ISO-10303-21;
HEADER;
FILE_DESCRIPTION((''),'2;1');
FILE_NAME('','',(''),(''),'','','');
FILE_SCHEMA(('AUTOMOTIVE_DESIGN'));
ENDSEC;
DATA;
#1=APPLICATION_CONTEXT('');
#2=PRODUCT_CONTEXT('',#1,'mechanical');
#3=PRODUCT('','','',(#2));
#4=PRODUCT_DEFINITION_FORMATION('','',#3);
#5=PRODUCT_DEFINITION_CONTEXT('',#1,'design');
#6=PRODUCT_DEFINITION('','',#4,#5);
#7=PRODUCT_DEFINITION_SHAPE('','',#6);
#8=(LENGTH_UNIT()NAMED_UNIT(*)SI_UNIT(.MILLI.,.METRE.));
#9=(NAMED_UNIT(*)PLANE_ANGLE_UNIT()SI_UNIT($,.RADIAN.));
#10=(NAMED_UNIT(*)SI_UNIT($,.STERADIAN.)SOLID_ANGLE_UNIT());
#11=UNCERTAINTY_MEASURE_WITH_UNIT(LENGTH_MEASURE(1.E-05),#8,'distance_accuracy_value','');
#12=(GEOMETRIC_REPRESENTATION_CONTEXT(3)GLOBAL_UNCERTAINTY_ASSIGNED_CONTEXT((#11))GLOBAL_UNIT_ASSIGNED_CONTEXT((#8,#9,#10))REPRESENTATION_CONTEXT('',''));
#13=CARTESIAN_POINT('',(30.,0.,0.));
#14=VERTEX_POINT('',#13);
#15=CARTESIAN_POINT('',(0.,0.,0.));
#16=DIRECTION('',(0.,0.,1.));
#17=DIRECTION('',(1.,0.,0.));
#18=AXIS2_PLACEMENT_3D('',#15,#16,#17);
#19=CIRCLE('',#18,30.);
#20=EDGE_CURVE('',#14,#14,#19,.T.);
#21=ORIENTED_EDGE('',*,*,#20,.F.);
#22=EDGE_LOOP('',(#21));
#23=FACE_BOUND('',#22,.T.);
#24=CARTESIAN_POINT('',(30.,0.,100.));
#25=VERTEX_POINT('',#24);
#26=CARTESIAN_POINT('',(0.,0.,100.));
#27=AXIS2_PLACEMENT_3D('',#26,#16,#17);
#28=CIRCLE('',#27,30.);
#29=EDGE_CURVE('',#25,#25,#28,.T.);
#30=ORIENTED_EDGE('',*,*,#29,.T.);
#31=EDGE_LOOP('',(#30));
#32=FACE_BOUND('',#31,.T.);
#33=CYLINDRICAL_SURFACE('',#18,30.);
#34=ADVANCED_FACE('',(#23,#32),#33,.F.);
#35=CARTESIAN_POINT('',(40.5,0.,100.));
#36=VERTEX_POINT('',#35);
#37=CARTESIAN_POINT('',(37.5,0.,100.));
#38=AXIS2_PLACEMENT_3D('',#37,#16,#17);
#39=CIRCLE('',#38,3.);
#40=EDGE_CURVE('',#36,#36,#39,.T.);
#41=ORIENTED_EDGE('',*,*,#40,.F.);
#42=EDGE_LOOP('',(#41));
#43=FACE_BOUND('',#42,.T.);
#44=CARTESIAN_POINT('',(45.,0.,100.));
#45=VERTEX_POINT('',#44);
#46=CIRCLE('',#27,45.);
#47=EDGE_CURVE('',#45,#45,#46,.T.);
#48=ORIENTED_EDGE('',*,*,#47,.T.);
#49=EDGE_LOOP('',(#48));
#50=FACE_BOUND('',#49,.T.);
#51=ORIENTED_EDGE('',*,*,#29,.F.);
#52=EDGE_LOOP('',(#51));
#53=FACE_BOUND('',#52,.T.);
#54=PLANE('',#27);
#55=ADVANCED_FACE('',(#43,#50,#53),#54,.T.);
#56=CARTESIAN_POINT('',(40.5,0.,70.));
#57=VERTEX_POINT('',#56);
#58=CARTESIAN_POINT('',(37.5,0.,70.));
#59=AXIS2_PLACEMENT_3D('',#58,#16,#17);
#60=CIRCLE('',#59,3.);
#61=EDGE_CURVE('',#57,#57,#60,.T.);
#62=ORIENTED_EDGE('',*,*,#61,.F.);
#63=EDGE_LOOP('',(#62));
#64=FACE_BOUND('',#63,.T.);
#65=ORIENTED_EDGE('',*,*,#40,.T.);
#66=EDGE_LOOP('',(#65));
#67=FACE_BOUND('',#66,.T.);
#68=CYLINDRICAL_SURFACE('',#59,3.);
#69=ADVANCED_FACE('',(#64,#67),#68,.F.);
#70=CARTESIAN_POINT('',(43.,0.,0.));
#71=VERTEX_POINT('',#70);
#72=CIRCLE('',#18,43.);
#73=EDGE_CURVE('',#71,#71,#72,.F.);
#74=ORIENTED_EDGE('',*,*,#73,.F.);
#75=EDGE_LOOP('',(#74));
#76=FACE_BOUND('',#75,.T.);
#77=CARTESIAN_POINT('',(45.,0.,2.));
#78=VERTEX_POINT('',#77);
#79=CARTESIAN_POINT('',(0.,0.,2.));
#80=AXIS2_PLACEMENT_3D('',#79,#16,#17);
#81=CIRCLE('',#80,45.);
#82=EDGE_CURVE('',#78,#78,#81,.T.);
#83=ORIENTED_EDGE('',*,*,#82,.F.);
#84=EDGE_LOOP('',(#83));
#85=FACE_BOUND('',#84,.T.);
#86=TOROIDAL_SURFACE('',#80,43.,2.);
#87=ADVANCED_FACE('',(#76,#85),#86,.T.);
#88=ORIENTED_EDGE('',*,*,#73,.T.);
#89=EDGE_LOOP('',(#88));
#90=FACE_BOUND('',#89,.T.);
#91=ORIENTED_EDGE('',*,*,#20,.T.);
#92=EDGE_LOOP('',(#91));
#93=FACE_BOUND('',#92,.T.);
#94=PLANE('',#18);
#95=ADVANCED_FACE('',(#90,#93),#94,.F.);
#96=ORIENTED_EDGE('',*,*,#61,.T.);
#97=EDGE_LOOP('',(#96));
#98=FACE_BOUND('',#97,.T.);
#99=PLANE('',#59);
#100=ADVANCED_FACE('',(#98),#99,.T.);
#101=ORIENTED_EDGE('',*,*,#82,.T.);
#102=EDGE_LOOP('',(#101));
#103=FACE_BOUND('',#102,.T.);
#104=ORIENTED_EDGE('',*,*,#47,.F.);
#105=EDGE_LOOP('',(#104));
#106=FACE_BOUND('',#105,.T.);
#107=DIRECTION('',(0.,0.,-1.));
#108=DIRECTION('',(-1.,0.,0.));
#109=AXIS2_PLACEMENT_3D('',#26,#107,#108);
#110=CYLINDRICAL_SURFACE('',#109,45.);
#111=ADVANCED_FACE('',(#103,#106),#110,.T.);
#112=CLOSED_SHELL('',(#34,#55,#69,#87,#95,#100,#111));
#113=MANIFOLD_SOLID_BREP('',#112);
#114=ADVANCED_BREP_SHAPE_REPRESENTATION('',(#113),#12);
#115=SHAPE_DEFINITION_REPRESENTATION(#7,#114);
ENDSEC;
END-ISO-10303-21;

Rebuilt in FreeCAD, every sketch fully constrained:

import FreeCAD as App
import Part
import Sketcher
from FreeCAD import Vector
Q = App.Units.Quantity


def edges_at(feature, points):
    """Names of the edges that pass closest to the given points."""
    edges = feature.Shape.Edges
    near = lambda p: min(range(len(edges)), key=lambda i: edges[i].distToShape(Part.Vertex(*p))[0])
    return sorted({f"Edge{near(p) + 1}" for p in points})

doc = App.newDocument("Part")
body = doc.addObject("PartDesign::Body", "Body")

# Sketch on XY plane
sketch1 = doc.addObject("Sketcher::SketchObject", "Sketch")
body.addObject(sketch1)
sketch1.AttachmentSupport = (doc.XY_Plane, [""])
sketch1.MapMode = "FlatFace"
sketch1.addGeometry(Part.Circle(Vector(0, 0, 0), Vector(0, 0, 1), 45), False)
sketch1.addConstraint([
    Sketcher.Constraint("Coincident", 0, 3, -1, 1),
    Sketcher.Constraint("Diameter", 0, Q("90 mm")),
])
pad1 = doc.addObject("PartDesign::Pad", "Pad")
body.addObject(pad1)
pad1.Profile = sketch1
pad1.Length = 100

# Sketch on XY plane
sketch2 = doc.addObject("Sketcher::SketchObject", "Sketch001")
body.addObject(sketch2)
sketch2.AttachmentSupport = (doc.XY_Plane, [""])
sketch2.MapMode = "FlatFace"
sketch2.AttachmentOffset = App.Placement(Vector(0, 0, 100), App.Rotation())
sketch2.addGeometry(Part.Circle(Vector(0, 0, 0), Vector(0, 0, 1), 30), False)
sketch2.addConstraint([
    Sketcher.Constraint("Coincident", 0, 3, -1, 1),
    Sketcher.Constraint("Diameter", 0, Q("60 mm")),
])
pocket1 = doc.addObject("PartDesign::Pocket", "Pocket")
body.addObject(pocket1)
pocket1.Profile = sketch2
pocket1.Length = 100

# Sketch on XY plane
sketch3 = doc.addObject("Sketcher::SketchObject", "Sketch002")
body.addObject(sketch3)
sketch3.AttachmentSupport = (doc.XY_Plane, [""])
sketch3.MapMode = "FlatFace"
sketch3.AttachmentOffset = App.Placement(Vector(0, 0, 100), App.Rotation())
sketch3.addGeometry(Part.Circle(Vector(37.5, 0, 0), Vector(0, 0, 1), 3), False)
sketch3.addConstraint([
    Sketcher.Constraint("PointOnObject", 0, 3, -1),
    Sketcher.Constraint("Diameter", 0, Q("6 mm")),
    Sketcher.Constraint("DistanceX", -1, 1, 0, 3, Q("37.5 mm")),
])
pocket2 = doc.addObject("PartDesign::Pocket", "Pocket001")
body.addObject(pocket2)
pocket2.Profile = sketch3
pocket2.Length = 30
doc.recompute()

fillet = doc.addObject("PartDesign::Fillet", "Fillet")
body.addObject(fillet)
fillet.Base = (pocket2, edges_at(pocket2, [(-45, 0, 0)]))
fillet.Radius = 2

doc.recompute()
